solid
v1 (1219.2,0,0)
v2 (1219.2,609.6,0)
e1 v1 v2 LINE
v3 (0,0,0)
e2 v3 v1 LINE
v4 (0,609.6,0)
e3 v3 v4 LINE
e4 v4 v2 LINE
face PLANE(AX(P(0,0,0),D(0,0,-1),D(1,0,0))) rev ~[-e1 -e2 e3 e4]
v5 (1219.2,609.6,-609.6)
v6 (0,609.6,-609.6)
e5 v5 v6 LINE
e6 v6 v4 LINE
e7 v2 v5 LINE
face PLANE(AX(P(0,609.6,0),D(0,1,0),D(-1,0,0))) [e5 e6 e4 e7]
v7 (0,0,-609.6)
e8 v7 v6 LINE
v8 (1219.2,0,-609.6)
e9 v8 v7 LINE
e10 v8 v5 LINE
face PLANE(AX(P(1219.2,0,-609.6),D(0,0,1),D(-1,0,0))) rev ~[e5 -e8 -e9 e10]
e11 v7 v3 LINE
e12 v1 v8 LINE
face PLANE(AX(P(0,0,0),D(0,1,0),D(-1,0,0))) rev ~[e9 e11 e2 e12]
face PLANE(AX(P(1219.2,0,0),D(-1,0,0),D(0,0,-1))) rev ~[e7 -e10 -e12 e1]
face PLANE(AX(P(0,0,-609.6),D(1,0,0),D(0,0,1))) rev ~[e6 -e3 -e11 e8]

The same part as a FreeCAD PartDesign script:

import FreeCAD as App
import Part
import Sketcher
from FreeCAD import Vector
Q = App.Units.Quantity

doc = App.newDocument("Part")
body = doc.addObject("PartDesign::Body", "Body")

sketch1 = doc.addObject("Sketcher::SketchObject", "Sketch")
body.addObject(sketch1)
sketch1.AttachmentSupport = (doc.XZ_Plane, [""])
sketch1.MapMode = "FlatFace"
sketch1.addGeometry(Part.LineSegment(Vector(0, -609.6, 0), Vector(0, 0, 0)), False)
sketch1.addGeometry(Part.LineSegment(Vector(0, 0, 0), Vector(1219.2, 0, 0)), False)
sketch1.addGeometry(Part.LineSegment(Vector(1219.2, 0, 0), Vector(1219.2, -609.6, 0)), False)
sketch1.addGeometry(Part.LineSegment(Vector(1219.2, -609.6, 0), Vector(0, -609.6, 0)), False)
sketch1.addConstraint(Sketcher.Constraint("Coincident", 0, 2, 1, 1))
sketch1.addConstraint(Sketcher.Constraint("Coincident", 1, 2, 2, 1))
sketch1.addConstraint(Sketcher.Constraint("Coincident", 2, 2, 3, 1))
sketch1.addConstraint(Sketcher.Constraint("Coincident", 3, 2, 0, 1))
sketch1.addConstraint(Sketcher.Constraint("Vertical", 0))
sketch1.addConstraint(Sketcher.Constraint("Horizontal", 1))
sketch1.addConstraint(Sketcher.Constraint("Vertical", 2))
sketch1.addConstraint(Sketcher.Constraint("Horizontal", 3))
sketch1.addConstraint(Sketcher.Constraint("Coincident", 0, 2, -1, 1))
sketch1.addConstraint(Sketcher.Constraint("DistanceX", 1, 1, 1, 2, Q("48 in")))
sketch1.addConstraint(Sketcher.Constraint("DistanceY", 0, 1, 0, 2, Q("24 in")))
pad1 = doc.addObject("PartDesign::Pad", "Pad")
body.addObject(pad1)
pad1.Profile = sketch1
pad1.Length = Q("24 in")
pad1.Reversed = True

doc.recompute()
